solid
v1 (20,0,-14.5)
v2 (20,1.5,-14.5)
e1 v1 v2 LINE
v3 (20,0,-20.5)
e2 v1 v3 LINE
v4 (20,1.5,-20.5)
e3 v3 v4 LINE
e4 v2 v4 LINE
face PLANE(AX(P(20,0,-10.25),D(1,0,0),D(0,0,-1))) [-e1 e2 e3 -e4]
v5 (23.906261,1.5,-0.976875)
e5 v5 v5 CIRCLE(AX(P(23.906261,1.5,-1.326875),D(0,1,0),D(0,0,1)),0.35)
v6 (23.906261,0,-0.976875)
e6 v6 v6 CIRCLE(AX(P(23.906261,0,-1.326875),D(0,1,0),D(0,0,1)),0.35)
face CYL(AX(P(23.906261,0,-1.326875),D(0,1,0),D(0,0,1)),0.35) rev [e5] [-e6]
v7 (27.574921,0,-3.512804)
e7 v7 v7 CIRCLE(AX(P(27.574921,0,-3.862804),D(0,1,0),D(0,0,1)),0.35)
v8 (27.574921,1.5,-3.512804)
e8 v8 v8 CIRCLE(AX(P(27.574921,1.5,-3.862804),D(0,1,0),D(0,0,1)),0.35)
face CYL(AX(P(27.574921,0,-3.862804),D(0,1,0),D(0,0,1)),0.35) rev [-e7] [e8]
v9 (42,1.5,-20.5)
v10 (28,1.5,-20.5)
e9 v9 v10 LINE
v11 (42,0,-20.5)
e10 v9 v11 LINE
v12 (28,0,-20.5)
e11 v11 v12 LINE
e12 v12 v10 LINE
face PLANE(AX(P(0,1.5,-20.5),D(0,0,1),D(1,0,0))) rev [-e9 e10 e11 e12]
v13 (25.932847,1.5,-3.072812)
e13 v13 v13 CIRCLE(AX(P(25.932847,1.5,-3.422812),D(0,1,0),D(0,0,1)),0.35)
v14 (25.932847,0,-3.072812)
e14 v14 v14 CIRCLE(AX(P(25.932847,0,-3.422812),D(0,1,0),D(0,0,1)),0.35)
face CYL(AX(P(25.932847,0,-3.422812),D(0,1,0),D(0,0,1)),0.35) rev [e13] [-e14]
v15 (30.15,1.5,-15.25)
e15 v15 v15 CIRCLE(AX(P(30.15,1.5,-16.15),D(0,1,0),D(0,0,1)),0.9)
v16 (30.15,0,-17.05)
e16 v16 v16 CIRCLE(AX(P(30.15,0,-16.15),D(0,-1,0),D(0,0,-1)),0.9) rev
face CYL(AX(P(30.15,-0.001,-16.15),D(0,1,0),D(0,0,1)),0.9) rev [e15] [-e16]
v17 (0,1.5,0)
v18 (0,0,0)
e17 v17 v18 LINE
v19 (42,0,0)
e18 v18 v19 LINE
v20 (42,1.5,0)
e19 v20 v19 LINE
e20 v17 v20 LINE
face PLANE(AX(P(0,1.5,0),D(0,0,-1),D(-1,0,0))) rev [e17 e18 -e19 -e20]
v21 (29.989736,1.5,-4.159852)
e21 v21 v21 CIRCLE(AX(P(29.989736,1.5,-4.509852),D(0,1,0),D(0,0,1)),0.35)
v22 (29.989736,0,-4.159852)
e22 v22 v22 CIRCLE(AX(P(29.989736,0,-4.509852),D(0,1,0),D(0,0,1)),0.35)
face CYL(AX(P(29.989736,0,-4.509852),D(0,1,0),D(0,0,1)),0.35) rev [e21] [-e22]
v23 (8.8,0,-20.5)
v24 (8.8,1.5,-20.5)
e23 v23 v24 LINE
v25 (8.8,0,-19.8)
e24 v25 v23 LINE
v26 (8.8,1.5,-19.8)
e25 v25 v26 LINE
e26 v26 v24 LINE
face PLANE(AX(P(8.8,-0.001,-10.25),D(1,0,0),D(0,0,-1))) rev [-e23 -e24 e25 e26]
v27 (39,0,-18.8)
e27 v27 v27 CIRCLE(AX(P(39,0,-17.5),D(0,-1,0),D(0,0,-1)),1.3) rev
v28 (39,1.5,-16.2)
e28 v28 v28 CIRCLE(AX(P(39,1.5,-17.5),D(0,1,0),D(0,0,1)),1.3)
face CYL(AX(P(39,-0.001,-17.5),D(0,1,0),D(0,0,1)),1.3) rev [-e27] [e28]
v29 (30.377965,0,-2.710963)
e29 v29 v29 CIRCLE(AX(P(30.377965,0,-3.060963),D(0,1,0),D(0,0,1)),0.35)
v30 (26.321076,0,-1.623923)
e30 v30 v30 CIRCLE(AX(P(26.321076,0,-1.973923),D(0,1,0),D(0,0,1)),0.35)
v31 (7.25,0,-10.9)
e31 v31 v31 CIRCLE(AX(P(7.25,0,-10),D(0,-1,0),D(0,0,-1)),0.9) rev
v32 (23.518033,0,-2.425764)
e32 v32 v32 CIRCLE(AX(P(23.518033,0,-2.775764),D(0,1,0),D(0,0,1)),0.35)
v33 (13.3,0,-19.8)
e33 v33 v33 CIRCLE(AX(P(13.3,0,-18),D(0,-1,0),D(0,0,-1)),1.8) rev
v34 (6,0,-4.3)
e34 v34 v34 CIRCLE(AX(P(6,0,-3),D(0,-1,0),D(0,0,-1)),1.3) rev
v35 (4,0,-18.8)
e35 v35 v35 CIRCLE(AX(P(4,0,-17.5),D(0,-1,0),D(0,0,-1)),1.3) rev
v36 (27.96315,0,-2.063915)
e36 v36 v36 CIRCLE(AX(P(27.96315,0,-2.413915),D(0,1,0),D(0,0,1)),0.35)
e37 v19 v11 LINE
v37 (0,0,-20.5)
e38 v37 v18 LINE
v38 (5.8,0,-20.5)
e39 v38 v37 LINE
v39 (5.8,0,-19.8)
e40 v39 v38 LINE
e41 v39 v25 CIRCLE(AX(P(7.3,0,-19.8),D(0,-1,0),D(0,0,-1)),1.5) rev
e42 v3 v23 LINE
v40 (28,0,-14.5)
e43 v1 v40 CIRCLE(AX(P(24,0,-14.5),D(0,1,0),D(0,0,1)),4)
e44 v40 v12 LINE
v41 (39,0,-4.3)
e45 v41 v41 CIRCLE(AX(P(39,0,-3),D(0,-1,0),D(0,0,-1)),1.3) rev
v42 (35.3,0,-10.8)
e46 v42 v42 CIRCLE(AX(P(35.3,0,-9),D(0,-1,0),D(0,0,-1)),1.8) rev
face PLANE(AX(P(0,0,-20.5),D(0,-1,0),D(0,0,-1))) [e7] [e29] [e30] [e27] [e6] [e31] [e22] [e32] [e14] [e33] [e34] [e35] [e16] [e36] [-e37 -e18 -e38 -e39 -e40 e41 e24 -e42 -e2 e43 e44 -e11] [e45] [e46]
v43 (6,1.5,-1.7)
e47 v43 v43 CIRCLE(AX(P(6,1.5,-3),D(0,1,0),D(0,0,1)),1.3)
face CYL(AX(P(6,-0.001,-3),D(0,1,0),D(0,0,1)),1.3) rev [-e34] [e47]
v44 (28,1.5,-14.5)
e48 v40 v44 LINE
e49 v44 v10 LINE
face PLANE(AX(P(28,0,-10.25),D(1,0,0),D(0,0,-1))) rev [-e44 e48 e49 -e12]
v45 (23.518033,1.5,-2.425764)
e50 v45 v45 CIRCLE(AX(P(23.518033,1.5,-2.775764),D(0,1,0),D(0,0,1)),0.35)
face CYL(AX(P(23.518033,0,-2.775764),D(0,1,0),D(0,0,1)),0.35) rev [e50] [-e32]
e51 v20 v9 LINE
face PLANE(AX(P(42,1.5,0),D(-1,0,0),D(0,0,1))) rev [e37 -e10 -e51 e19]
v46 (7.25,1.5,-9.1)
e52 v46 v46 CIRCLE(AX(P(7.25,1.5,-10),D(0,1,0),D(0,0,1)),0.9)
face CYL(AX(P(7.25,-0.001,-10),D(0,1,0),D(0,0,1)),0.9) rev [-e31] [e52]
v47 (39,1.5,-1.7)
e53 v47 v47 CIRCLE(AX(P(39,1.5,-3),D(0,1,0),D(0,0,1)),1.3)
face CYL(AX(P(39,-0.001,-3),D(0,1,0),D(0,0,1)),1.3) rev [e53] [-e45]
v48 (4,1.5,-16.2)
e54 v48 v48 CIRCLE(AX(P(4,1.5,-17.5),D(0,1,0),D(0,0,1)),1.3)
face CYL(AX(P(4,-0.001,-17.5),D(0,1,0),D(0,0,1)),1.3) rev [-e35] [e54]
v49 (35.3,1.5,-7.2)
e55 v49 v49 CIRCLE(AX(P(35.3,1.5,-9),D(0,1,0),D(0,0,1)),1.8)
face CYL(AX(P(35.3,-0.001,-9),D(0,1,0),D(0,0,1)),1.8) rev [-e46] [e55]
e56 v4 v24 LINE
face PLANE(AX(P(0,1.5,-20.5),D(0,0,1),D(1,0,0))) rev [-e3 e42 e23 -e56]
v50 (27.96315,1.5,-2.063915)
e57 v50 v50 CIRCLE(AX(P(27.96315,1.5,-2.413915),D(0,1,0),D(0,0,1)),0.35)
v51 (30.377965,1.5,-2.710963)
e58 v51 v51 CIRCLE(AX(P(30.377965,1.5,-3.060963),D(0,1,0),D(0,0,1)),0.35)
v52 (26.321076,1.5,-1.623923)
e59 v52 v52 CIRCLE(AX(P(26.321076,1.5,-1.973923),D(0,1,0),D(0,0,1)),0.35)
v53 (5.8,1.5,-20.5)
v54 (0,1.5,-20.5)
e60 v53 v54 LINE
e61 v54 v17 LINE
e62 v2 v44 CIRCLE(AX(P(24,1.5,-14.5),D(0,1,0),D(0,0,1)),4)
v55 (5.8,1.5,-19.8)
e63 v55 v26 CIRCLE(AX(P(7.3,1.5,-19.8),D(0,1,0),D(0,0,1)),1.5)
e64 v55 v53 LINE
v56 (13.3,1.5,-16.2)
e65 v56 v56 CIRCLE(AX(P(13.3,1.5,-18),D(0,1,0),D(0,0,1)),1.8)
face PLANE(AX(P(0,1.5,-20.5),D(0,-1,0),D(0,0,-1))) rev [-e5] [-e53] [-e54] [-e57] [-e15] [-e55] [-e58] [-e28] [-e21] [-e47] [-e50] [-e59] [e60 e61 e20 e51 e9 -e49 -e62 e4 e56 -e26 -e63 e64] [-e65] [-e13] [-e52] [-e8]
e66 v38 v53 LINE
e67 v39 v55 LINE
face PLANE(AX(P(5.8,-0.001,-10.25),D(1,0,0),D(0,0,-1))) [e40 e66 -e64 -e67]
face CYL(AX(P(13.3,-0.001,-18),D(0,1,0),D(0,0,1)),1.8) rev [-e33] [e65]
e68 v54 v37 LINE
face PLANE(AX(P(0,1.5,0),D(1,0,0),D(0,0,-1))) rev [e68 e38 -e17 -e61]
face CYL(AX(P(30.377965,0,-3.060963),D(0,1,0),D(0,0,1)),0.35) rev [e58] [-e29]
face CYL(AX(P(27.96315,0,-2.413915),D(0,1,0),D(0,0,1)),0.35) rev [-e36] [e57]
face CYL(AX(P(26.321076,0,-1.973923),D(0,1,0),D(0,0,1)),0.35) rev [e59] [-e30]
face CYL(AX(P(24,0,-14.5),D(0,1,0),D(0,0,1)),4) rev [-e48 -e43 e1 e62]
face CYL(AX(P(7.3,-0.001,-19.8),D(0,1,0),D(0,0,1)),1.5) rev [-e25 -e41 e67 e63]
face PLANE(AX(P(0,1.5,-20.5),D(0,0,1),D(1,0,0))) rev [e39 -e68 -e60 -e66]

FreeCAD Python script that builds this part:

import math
import FreeCAD as App
import Part
import Sketcher
Q = App.Units.Quantity


def add_polygon(sketch, points):
    """Adds a closed chain of lines whose ends are joined by coincident constraints."""
    first, n = sketch.GeometryCount, len(points)
    for a, b in zip(points, points[1:] + points[:1]):
        sketch.addGeometry(Part.LineSegment(App.Vector(*a, 0), App.Vector(*b, 0)), False)
    for i in range(n):
        sketch.addConstraint(Sketcher.Constraint("Coincident", first + i, 2, first + (i + 1) % n, 1))

doc = App.newDocument("Part")
body = doc.addObject("PartDesign::Body", "Body")

sketch1 = body.newObject("Sketcher::SketchObject", "Sketch")
sketch1.AttachmentSupport = (doc.getObject("XZ_Plane"), [""])
sketch1.MapMode = "FlatFace"
add_polygon(sketch1, [(0, -20), (0, 0), (42, 0), (42, -20)])
sketch1.addConstraint([
    Sketcher.Constraint("Vertical", 0),
    Sketcher.Constraint("Horizontal", 1),
    Sketcher.Constraint("Vertical", 2),
    Sketcher.Constraint("Horizontal", 3),
    Sketcher.Constraint("Coincident", 0, 2, -1, 1),
    Sketcher.Constraint("DistanceX", 1, 1, 1, 2, Q("42 mm")),
    Sketcher.Constraint("DistanceY", 0, 1, 0, 2, Q("20.5 mm")),
])
pad1 = body.newObject("PartDesign::Pad", "Pad")
pad1.Profile = sketch1
pad1.Length = 1.5
pad1.Reversed = True

sketch2 = body.newObject("Sketcher::SketchObject", "Sketch001")
sketch2.AttachmentSupport = (doc.getObject("XZ_Plane"), [""])
sketch2.MapMode = "FlatFace"
sketch2.AttachmentOffset = App.Placement(App.Vector(0, 0, -1.5), App.Rotation())
sketch2.addGeometry([
    Part.ArcOfCircle(Part.Circle(App.Vector(24, -14.5, 0), App.Vector(0, 0, 1), 4), math.radians(0), math.radians(180)),
    Part.LineSegment(App.Vector(28, -14.5, 0), App.Vector(28, -20.5, 0)),
    Part.LineSegment(App.Vector(28, -20.5, 0), App.Vector(20, -20.5, 0)),
    Part.LineSegment(App.Vector(20, -20.5, 0), App.Vector(20, -14.5, 0)),
], False)
sketch2.addConstraint([
    Sketcher.Constraint("Tangent", 0, 1, 1, 1),
    Sketcher.Constraint("Coincident", 1, 2, 2, 1),
    Sketcher.Constraint("Coincident", 2, 2, 3, 1),
    Sketcher.Constraint("Tangent", 3, 2, 0, 2),
    Sketcher.Constraint("Vertical", 1),
    Sketcher.Constraint("Horizontal", 2),
    Sketcher.Constraint("Vertical", 3),
    Sketcher.Constraint("Radius", 0, Q("4 mm")),
    Sketcher.Constraint("DistanceY", 1, 2, 1, 1, Q("6 mm")),
    Sketcher.Constraint("DistanceX", -1, 1, 0, 3, Q("24 mm")),
    Sketcher.Constraint("DistanceY", 0, 3, -1, 1, Q("14.5 mm")),
])
pocket1 = body.newObject("PartDesign::Pocket", "Pocket")
pocket1.Profile = sketch2
pocket1.Type = "ThroughAll"
pocket1.Reversed = True

sketch3 = body.newObject("Sketcher::SketchObject", "Sketch002")
sketch3.AttachmentSupport = (doc.getObject("XZ_Plane"), [""])
sketch3.MapMode = "FlatFace"
sketch3.AttachmentOffset = App.Placement(App.Vector(0, 0, -1.5), App.Rotation())
sketch3.addGeometry([
    Part.LineSegment(App.Vector(5.8, -20.5, 0), App.Vector(5.8, -19.8, 0)),
    Part.ArcOfCircle(Part.Circle(App.Vector(7.3, -19.8, 0), App.Vector(0, 0, 1), 1.5), math.radians(0), math.radians(180)),
    Part.LineSegment(App.Vector(8.8, -19.8, 0), App.Vector(8.8, -20.5, 0)),
    Part.LineSegment(App.Vector(8.8, -20.5, 0), App.Vector(5.8, -20.5, 0)),
], False)
sketch3.addConstraint([
    Sketcher.Constraint("Tangent", 0, 2, 1, 2),
    Sketcher.Constraint("Tangent", 1, 1, 2, 1),
    Sketcher.Constraint("Coincident", 2, 2, 3, 1),
    Sketcher.Constraint("Coincident", 3, 2, 0, 1),
    Sketcher.Constraint("Vertical", 0),
    Sketcher.Constraint("Vertical", 2),
    Sketcher.Constraint("Horizontal", 3),
    Sketcher.Constraint("Radius", 1, Q("1.5 mm")),
    Sketcher.Constraint("DistanceY", 0, 1, 0, 2, Q("0.7 mm")),
    Sketcher.Constraint("DistanceX", -1, 1, 1, 3, Q("7.3 mm")),
    Sketcher.Constraint("DistanceY", 1, 3, -1, 1, Q("19.8 mm")),
])
pocket2 = body.newObject("PartDesign::Pocket", "Pocket001")
pocket2.Profile = sketch3
pocket2.Type = "UpToFirst"
pocket2.Reversed = True

sketch4 = body.newObject("Sketcher::SketchObject", "Sketch003")
sketch4.AttachmentSupport = (doc.getObject("XZ_Plane"), [""])
sketch4.MapMode = "FlatFace"
sketch4.AttachmentOffset = App.Placement(App.Vector(0, 0, -1.5), App.Rotation())
sketch4.addGeometry(Part.Circle(App.Vector(7.2, -10, 0), App.Vector(0, 0, 1), 0.9), False)
sketch4.addConstraint([
    Sketcher.Constraint("Diameter", 0, Q("1.8 mm")),
    Sketcher.Constraint("DistanceY", 0, 3, -1, 1, Q("10 mm")),
    Sketcher.Constraint("DistanceX", -1, 1, 0, 3, Q("7.25 mm")),
])
pocket3 = body.newObject("PartDesign::Pocket", "Pocket002")
pocket3.Profile = sketch4
pocket3.Type = "UpToFirst"
pocket3.Reversed = True

sketch5 = body.newObject("Sketcher::SketchObject", "Sketch004")
sketch5.AttachmentSupport = (doc.getObject("XZ_Plane"), [""])
sketch5.MapMode = "FlatFace"
sketch5.AttachmentOffset = App.Placement(App.Vector(0, 0, -1.5), App.Rotation())
sketch5.addGeometry(Part.Circle(App.Vector(30.1, -16.1, 0), App.Vector(0, 0, 1), 0.9), False)
sketch5.addConstraint([
    Sketcher.Constraint("Diameter", 0, Q("1.8 mm")),
    Sketcher.Constraint("DistanceX", -1, 1, 0, 3, Q("30.15 mm")),
    Sketcher.Constraint("DistanceY", 0, 3, -1, 1, Q("16.15 mm")),
])
pocket4 = body.newObject("PartDesign::Pocket", "Pocket003")
pocket4.Profile = sketch5
pocket4.Type = "UpToFirst"
pocket4.Reversed = True

sketch6 = body.newObject("Sketcher::SketchObject", "Sketch005")
sketch6.AttachmentSupport = (doc.getObject("XZ_Plane"), [""])
sketch6.MapMode = "FlatFace"
sketch6.AttachmentOffset = App.Placement(App.Vector(0, 0, -1.5), App.Rotation())
sketch6.addGeometry(Part.Circle(App.Vector(39, -3, 0), App.Vector(0, 0, 1), 1.3), False)
sketch6.addConstraint([
    Sketcher.Constraint("Diameter", 0, Q("2.6 mm")),
    Sketcher.Constraint("DistanceX", -1, 1, 0, 3, Q("39 mm")),
    Sketcher.Constraint("DistanceY", 0, 3, -1, 1, Q("3 mm")),
])
pocket5 = body.newObject("PartDesign::Pocket", "Pocket004")
pocket5.Profile = sketch6
pocket5.Type = "UpToFirst"
pocket5.Reversed = True

sketch7 = body.newObject("Sketcher::SketchObject", "Sketch006")
sketch7.AttachmentSupport = (doc.getObject("XZ_Plane"), [""])
sketch7.MapMode = "FlatFace"
sketch7.AttachmentOffset = App.Placement(App.Vector(0, 0, -1.5), App.Rotation())
sketch7.addGeometry(Part.Circle(App.Vector(39, -17.5, 0), App.Vector(0, 0, 1), 1.3), False)
sketch7.addConstraint([
    Sketcher.Constraint("Diameter", 0, Q("2.6 mm")),
    Sketcher.Constraint("DistanceX", -1, 1, 0, 3, Q("39 mm")),
    Sketcher.Constraint("DistanceY", 0, 3, -1, 1, Q("17.5 mm")),
])
pocket6 = body.newObject("PartDesign::Pocket", "Pocket005")
pocket6.Profile = sketch7
pocket6.Type = "UpToFirst"
pocket6.Reversed = True

sketch8 = body.newObject("Sketcher::SketchObject", "Sketch007")
sketch8.AttachmentSupport = (doc.getObject("XZ_Plane"), [""])
sketch8.MapMode = "FlatFace"
sketch8.AttachmentOffset = App.Placement(App.Vector(0, 0, -1.5), App.Rotation())
sketch8.addGeometry(Part.Circle(App.Vector(6, -3, 0), App.Vector(0, 0, 1), 1.3), False)
sketch8.addConstraint([
    Sketcher.Constraint("Diameter", 0, Q("2.6 mm")),
    Sketcher.Constraint("DistanceX", -1, 1, 0, 3, Q("6 mm")),
    Sketcher.Constraint("DistanceY", 0, 3, -1, 1, Q("3 mm")),
])
pocket7 = body.newObject("PartDesign::Pocket", "Pocket006")
pocket7.Profile = sketch8
pocket7.Type = "UpToFirst"
pocket7.Reversed = True

sketch9 = body.newObject("Sketcher::SketchObject", "Sketch008")
sketch9.AttachmentSupport = (doc.getObject("XZ_Plane"), [""])
sketch9.MapMode = "FlatFace"
sketch9.AttachmentOffset = App.Placement(App.Vector(0, 0, -1.5), App.Rotation())
sketch9.addGeometry(Part.Circle(App.Vector(4, -17.5, 0), App.Vector(0, 0, 1), 1.3), False)
sketch9.addConstraint([
    Sketcher.Constraint("Diameter", 0, Q("2.6 mm")),
    Sketcher.Constraint("DistanceX", -1, 1, 0, 3, Q("4 mm")),
    Sketcher.Constraint("DistanceY", 0, 3, -1, 1, Q("17.5 mm")),
])
pocket8 = body.newObject("PartDesign::Pocket", "Pocket007")
pocket8.Profile = sketch9
pocket8.Type = "UpToFirst"
pocket8.Reversed = True

sketch10 = body.newObject("Sketcher::SketchObject", "Sketch009")
sketch10.AttachmentSupport = (doc.getObject("XZ_Plane"), [""])
sketch10.MapMode = "FlatFace"
sketch10.AttachmentOffset = App.Placement(App.Vector(0, 0, -1.5), App.Rotation())
sketch10.addGeometry(Part.Circle(App.Vector(13.3, -18, 0), App.Vector(0, 0, 1), 1.8), False)
sketch10.addConstraint([
    Sketcher.Constraint("Diameter", 0, Q("3.6 mm")),
    Sketcher.Constraint("DistanceY", 0, 3, -1, 1, Q("18 mm")),
    Sketcher.Constraint("DistanceX", -1, 1, 0, 3, Q("13.3 mm")),
])
pocket9 = body.newObject("PartDesign::Pocket", "Pocket008")
pocket9.Profile = sketch10
pocket9.Type = "UpToFirst"
pocket9.Reversed = True

sketch11 = body.newObject("Sketcher::SketchObject", "Sketch010")
sketch11.AttachmentSupport = (doc.getObject("XZ_Plane"), [""])
sketch11.MapMode = "FlatFace"
sketch11.AttachmentOffset = App.Placement(App.Vector(0, 0, -1.5), App.Rotation())
sketch11.addGeometry(Part.Circle(App.Vector(35.3, -9, 0), App.Vector(0, 0, 1), 1.8), False)
sketch11.addConstraint([
    Sketcher.Constraint("Diameter", 0, Q("3.6 mm")),
    Sketcher.Constraint("DistanceY", 0, 3, -1, 1, Q("9 mm")),
    Sketcher.Constraint("DistanceX", -1, 1, 0, 3, Q("35.3 mm")),
])
pocket10 = body.newObject("PartDesign::Pocket", "Pocket009")
pocket10.Profile = sketch11
pocket10.Type = "UpToFirst"
pocket10.Reversed = True

sketch12 = body.newObject("Sketcher::SketchObject", "Sketch011")
sketch12.AttachmentSupport = (doc.getObject("XZ_Plane"), [""])
sketch12.MapMode = "FlatFace"
sketch12.AttachmentOffset = App.Placement(App.Vector(0, 0, -1.5), App.Rotation())
sketch12.addGeometry([
    Part.Circle(App.Vector(29.99, -4.51, 0), App.Vector(0, 0, 1), 0.35),
    Part.Circle(App.Vector(27.57, -3.86, 0), App.Vector(0, 0, 1), 0.35),
    Part.Circle(App.Vector(25.93, -3.42, 0), App.Vector(0, 0, 1), 0.35),
    Part.Circle(App.Vector(23.52, -2.78, 0), App.Vector(0, 0, 1), 0.35),
    Part.Circle(App.Vector(30.38, -3.06, 0), App.Vector(0, 0, 1), 0.35),
    Part.Circle(App.Vector(27.96, -2.41, 0), App.Vector(0, 0, 1), 0.35),
    Part.Circle(App.Vector(26.32, -1.97, 0), App.Vector(0, 0, 1), 0.35),
    Part.Circle(App.Vector(23.91, -1.33, 0), App.Vector(0, 0, 1), 0.35),
], False)
sketch12.addConstraint([
    Sketcher.Constraint("Equal", 0, 1),
    Sketcher.Constraint("Equal", 1, 2),
    Sketcher.Constraint("Equal", 2, 3),
    Sketcher.Constraint("Equal", 3, 4),
    Sketcher.Constraint("Equal", 4, 5),
    Sketcher.Constraint("Equal", 5, 6),
    Sketcher.Constraint("Equal", 6, 7),
    Sketcher.Constraint("Diameter", 0, Q("0.7 mm")),
    Sketcher.Constraint("DistanceY", 4, 3, 3, 3, Q("0.285199 mm")),
    Sketcher.Constraint("DistanceY", 0, 3, -1, 1, Q("4.509852 mm")),
    Sketcher.Constraint("DistanceX", -1, 1, 1, 3, Q("27.574921 mm")),
    Sketcher.Constraint("DistanceY", 2, 3, -1, 1, Q("3.422812 mm")),
    Sketcher.Constraint("DistanceX", -1, 1, 5, 3, Q("27.96315 mm")),
    Sketcher.Constraint("DistanceX", -1, 1, 7, 3, Q("23.906261 mm")),
    Sketcher.Constraint("DistanceX", 2, 3, 0, 3, Q("4.056888 mm")),
    Sketcher.Constraint("DistanceX", 3, 3, 1, 3, Q("4.056888 mm")),
    Sketcher.Constraint("DistanceY", 1, 3, 3, 3, Q("1.08704 mm")),
    Sketcher.Constraint("DistanceX", 0, 3, 4, 3, Q("0.388229 mm")),
    Sketcher.Constraint("DistanceY", 0, 3, 4, 3, Q("1.448889 mm")),
    Sketcher.Constraint("DistanceX", 3, 3, 4, 3, Q("6.859932 mm")),
    Sketcher.Constraint("DistanceY", 1, 3, 5, 3, Q("1.448889 mm")),
    Sketcher.Constraint("DistanceX", 2, 3, 6, 3, Q("0.388229 mm")),
    Sketcher.Constraint("DistanceY", 2, 3, 6, 3, Q("1.448889 mm")),
    Sketcher.Constraint("DistanceY", 3, 3, 7, 3, Q("1.448889 mm")),
])
pocket11 = body.newObject("PartDesign::Pocket", "Pocket010")
pocket11.Profile = sketch12
pocket11.Type = "ThroughAll"
pocket11.Reversed = True

doc.recompute()
